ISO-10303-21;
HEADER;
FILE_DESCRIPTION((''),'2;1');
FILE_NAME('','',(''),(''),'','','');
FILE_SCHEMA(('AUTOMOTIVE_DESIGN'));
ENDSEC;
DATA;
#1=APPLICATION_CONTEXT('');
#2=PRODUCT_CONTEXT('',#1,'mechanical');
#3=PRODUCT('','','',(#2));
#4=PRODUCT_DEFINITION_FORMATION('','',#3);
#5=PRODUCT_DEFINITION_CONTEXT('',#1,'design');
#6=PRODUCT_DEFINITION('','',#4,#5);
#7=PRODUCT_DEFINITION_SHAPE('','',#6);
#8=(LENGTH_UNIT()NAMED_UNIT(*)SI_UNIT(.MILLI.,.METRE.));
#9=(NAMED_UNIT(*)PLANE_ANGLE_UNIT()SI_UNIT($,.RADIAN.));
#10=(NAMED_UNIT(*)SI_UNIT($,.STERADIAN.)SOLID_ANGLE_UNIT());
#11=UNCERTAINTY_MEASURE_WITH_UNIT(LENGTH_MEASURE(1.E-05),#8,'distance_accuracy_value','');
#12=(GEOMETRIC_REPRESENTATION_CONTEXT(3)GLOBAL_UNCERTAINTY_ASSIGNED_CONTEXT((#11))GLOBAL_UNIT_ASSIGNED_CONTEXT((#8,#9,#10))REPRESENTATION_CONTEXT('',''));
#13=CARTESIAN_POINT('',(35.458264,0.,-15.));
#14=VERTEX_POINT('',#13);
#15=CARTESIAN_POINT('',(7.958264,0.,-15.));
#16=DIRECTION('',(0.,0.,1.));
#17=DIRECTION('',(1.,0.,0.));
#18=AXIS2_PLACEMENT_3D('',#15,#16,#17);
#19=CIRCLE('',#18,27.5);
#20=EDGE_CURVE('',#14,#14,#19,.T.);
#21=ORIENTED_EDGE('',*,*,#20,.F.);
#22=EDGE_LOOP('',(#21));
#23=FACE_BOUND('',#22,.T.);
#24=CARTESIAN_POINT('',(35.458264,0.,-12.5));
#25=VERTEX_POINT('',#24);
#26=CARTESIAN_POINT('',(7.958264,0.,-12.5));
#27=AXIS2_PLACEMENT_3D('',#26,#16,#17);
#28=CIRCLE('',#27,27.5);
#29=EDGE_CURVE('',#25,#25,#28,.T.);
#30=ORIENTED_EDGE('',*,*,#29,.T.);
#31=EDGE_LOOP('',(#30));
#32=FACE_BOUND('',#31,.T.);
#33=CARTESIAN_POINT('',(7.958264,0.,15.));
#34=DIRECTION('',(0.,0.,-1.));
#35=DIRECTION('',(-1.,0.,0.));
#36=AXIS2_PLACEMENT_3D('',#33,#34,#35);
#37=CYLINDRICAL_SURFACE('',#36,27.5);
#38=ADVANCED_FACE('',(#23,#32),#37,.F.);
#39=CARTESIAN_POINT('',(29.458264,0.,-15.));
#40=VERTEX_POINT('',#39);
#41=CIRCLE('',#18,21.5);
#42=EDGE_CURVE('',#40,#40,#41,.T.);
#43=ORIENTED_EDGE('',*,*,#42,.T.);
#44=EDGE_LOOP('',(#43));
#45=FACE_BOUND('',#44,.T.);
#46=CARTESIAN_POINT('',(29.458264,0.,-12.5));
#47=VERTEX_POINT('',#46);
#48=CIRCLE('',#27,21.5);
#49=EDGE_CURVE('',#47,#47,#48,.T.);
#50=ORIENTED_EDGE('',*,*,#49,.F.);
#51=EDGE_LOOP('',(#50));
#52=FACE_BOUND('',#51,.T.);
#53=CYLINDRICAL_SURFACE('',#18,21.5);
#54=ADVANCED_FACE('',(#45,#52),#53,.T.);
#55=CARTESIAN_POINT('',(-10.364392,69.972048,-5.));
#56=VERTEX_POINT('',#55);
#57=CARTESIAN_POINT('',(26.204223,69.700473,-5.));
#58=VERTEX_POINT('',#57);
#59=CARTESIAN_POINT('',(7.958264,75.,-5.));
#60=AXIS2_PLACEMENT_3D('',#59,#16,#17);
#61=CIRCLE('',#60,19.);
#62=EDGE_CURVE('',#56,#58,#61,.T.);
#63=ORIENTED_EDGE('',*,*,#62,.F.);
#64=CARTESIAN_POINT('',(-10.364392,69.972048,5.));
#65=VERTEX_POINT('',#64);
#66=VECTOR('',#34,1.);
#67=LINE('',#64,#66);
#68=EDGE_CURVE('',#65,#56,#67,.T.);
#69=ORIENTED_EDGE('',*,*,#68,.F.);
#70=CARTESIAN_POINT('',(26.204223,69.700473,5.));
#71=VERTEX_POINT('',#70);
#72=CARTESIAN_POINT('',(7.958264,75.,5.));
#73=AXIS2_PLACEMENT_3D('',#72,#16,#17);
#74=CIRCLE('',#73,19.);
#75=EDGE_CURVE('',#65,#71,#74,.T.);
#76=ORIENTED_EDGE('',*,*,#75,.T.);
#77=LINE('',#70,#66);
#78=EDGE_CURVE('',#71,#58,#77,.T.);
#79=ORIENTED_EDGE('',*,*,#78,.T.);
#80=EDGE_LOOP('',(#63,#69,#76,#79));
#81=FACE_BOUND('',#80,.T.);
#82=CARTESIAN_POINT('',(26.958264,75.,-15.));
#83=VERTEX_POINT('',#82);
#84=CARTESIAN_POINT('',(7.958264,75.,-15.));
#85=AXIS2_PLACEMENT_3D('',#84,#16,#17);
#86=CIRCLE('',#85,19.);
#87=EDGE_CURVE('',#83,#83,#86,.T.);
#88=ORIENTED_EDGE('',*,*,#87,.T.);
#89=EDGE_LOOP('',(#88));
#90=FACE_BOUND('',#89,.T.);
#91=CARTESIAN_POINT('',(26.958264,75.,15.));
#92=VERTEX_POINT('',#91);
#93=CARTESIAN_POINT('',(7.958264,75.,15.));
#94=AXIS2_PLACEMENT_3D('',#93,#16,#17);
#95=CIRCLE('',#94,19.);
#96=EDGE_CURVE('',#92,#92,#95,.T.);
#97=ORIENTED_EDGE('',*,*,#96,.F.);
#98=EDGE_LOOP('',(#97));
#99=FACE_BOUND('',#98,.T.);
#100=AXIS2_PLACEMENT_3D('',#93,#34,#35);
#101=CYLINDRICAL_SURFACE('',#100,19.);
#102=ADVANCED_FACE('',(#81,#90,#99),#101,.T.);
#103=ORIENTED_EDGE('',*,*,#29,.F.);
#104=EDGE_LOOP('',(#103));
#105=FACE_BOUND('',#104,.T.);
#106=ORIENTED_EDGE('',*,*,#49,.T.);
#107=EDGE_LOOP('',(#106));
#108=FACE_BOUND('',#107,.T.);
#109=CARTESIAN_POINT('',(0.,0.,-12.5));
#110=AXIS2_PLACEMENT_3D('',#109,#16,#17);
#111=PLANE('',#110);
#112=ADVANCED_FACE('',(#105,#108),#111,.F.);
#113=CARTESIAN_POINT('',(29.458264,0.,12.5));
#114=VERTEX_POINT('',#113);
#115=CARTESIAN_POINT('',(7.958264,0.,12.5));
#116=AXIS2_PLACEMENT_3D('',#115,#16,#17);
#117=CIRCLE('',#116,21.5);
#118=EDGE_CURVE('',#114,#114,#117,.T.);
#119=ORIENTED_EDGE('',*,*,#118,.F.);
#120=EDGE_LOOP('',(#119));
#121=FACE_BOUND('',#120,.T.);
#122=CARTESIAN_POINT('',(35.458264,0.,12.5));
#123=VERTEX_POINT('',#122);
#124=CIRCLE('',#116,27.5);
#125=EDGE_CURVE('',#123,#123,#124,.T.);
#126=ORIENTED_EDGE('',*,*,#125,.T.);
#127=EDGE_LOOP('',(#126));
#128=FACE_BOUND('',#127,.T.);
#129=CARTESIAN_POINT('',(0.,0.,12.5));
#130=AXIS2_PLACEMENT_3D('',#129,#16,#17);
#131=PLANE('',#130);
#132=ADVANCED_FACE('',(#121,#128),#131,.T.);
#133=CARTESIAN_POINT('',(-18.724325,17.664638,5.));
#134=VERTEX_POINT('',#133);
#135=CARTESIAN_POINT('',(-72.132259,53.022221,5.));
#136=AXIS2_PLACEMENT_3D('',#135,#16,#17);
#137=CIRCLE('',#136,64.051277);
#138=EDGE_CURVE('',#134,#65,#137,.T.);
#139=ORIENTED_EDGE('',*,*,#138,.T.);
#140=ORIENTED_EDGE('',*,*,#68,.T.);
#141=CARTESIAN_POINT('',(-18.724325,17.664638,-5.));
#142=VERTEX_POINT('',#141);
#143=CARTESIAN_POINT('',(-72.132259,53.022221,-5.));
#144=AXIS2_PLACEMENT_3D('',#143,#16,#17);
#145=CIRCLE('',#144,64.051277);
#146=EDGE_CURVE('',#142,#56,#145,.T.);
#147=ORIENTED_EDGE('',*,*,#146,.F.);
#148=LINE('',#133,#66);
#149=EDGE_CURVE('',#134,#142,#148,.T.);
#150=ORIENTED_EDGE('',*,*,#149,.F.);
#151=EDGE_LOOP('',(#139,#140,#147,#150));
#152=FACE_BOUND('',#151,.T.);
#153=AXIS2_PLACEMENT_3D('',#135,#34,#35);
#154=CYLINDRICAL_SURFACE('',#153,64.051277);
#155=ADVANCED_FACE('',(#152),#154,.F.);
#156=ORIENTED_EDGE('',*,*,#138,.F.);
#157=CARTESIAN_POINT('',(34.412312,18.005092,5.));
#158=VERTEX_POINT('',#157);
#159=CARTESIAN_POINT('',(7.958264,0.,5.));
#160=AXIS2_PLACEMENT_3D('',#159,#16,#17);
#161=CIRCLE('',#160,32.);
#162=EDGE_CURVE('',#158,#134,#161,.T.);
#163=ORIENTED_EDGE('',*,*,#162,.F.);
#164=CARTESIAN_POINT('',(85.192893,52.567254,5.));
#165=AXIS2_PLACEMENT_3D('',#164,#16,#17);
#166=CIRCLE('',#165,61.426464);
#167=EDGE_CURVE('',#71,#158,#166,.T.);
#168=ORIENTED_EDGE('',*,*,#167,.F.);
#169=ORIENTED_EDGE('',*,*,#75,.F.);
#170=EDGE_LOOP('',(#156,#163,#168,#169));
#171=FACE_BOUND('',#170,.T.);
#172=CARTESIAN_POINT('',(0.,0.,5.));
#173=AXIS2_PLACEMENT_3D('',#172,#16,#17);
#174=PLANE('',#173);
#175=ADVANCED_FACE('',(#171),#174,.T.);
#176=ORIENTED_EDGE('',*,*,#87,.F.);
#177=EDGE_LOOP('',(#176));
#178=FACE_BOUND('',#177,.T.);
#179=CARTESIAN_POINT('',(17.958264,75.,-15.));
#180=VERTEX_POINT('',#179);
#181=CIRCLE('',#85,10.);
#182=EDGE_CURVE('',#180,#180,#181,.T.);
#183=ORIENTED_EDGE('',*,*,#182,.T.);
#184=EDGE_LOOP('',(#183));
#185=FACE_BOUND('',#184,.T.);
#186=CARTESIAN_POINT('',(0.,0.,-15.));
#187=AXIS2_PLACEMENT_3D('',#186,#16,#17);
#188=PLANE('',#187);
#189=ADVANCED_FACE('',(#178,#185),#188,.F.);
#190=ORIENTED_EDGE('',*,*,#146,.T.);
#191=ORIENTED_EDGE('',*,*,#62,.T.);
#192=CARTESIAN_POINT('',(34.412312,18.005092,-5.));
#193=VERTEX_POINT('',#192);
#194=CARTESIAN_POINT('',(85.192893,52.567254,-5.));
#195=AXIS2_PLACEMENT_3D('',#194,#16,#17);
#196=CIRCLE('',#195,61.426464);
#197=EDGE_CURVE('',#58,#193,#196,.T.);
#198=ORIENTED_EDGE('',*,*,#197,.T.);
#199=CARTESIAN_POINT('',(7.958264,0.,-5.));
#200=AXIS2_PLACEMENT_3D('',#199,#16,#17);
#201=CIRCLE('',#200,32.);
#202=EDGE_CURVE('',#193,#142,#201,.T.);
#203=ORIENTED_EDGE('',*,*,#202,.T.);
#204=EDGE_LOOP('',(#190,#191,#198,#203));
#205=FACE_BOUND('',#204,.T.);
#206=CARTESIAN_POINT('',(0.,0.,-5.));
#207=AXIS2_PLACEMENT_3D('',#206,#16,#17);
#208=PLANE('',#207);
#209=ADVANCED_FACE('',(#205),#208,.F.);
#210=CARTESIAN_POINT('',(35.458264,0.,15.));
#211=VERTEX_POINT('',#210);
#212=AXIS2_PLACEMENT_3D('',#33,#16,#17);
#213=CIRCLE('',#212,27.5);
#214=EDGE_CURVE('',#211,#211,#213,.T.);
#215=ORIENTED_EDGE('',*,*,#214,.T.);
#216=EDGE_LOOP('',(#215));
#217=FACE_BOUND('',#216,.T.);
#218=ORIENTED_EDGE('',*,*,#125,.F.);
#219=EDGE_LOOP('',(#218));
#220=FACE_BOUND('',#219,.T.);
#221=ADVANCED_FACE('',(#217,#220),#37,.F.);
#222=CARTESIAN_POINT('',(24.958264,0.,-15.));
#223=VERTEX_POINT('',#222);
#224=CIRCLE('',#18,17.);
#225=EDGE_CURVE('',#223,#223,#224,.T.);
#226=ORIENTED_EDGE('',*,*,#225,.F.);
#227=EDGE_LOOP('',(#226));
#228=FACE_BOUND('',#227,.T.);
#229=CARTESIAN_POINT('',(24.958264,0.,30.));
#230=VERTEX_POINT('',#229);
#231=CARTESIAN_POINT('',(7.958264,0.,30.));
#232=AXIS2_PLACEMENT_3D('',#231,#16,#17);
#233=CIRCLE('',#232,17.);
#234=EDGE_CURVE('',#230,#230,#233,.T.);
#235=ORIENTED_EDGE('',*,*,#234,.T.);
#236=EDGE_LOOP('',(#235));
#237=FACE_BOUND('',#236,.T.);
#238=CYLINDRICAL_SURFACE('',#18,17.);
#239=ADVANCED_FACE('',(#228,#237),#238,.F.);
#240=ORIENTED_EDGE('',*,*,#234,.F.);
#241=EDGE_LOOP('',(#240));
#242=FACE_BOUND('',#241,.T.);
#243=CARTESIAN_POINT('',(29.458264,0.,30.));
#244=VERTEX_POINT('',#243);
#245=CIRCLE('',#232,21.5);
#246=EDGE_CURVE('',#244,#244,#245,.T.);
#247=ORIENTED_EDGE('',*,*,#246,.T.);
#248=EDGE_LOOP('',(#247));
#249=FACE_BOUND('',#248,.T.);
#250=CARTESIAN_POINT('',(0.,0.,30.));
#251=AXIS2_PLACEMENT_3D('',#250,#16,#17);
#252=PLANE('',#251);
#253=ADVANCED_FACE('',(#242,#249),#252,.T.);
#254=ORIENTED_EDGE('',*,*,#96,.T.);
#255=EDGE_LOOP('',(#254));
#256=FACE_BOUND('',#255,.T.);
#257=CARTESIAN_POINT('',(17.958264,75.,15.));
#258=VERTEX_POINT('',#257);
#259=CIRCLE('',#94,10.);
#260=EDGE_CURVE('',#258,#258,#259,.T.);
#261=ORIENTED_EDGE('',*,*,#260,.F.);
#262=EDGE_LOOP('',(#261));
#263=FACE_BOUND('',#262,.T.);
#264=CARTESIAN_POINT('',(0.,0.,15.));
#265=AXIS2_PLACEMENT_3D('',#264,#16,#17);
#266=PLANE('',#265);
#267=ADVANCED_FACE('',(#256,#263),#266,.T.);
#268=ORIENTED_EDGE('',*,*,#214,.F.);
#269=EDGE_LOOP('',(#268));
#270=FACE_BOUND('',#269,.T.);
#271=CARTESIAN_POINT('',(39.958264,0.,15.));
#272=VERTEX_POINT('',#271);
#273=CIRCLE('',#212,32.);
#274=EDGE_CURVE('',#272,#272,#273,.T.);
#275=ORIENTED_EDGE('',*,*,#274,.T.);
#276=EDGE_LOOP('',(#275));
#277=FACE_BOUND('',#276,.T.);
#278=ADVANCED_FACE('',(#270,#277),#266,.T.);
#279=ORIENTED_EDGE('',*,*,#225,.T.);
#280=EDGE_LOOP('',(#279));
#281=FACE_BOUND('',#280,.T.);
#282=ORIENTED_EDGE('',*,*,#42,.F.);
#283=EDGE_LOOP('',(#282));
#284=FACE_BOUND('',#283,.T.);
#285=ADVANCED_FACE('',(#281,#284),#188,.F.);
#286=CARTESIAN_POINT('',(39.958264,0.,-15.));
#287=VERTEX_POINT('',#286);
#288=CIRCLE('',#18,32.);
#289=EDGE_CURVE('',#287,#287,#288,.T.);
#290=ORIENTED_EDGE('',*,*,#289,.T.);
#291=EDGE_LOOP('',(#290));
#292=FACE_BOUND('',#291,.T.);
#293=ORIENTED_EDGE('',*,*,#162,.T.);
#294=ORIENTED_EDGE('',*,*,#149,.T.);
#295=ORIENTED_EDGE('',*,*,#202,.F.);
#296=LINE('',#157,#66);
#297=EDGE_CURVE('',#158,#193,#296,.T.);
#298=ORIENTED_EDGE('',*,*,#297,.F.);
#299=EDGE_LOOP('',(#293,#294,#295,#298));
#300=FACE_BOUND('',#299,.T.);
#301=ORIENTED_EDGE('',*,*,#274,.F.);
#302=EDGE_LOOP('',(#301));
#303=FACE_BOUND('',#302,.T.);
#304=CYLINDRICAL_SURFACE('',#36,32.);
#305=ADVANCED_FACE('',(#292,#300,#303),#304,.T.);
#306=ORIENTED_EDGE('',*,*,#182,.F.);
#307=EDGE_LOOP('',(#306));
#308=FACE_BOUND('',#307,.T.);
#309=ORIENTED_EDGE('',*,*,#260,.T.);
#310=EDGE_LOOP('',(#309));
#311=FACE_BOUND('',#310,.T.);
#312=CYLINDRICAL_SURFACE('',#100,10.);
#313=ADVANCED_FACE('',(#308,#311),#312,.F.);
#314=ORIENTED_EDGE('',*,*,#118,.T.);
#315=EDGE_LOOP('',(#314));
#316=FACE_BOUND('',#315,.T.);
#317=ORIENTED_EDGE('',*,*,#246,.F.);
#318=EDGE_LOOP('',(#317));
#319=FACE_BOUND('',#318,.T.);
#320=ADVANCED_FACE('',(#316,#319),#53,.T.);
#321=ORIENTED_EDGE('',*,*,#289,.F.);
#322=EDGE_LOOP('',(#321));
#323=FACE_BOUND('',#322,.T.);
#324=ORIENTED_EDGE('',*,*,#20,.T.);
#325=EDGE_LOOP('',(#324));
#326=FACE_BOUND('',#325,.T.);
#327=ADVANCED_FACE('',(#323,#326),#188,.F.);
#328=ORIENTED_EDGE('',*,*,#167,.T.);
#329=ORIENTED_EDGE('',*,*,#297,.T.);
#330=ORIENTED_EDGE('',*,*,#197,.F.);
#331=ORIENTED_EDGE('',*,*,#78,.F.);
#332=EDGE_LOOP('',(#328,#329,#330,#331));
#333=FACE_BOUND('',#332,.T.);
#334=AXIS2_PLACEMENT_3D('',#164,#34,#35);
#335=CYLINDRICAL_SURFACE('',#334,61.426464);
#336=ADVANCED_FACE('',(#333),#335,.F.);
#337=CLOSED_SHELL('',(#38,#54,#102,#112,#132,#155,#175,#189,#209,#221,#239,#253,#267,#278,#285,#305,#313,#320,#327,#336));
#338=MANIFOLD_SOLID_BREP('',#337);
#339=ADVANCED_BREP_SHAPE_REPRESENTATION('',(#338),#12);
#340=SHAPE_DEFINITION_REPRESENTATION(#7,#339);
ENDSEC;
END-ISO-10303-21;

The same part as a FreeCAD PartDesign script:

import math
import FreeCAD as App
import Part
import Sketcher

V = App.Vector
Q = App.Units.Quantity

doc = App.newDocument("Part")
body = doc.addObject("PartDesign::Body", "Body")

sketch1 = body.newObject("Sketcher::SketchObject", "Sketch")
sketch1.AttachmentSupport = (doc.getObject("XY_Plane"), [""])
sketch1.MapMode = "FlatFace"
sketch1.addGeometry([
    Part.ArcOfCircle(Part.Circle(V(8, 0, 0), V(0, 0, 1), 32), math.radians(34), math.radians(146)),
    Part.ArcOfCircle(Part.Circle(V(85, 53, 0), V(0, 0, 1), 61), math.radians(164), math.radians(214)),
    Part.ArcOfCircle(Part.Circle(V(8, 75, 0), V(0, 0, 1), 19), math.radians(-165), math.radians(-16)),
    Part.ArcOfCircle(Part.Circle(V(-72, 53, 0), V(0, 0, 1), 64), math.radians(-34), math.radians(15)),
], False)
sketch1.addConstraint([
    Sketcher.Constraint("Tangent", 0, 1, 1, 2),
    Sketcher.Constraint("Tangent", 1, 1, 2, 2),
    Sketcher.Constraint("Tangent", 2, 1, 3, 2),
    Sketcher.Constraint("Tangent", 3, 1, 0, 2),
    Sketcher.Constraint("PointOnObject", 0, 3, -1),
    Sketcher.Constraint("Vertical", 0, 3, 2, 3),
    Sketcher.Constraint("Radius", 0, Q("32 mm")),
    Sketcher.Constraint("Radius", 2, Q("19 mm")),
    Sketcher.Constraint("DistanceY", -1, 1, 2, 3, Q("75 mm")),
    Sketcher.Constraint("Radius", 1, Q("61.426464 mm")),
    Sketcher.Constraint("Radius", 3, Q("64.051277 mm")),
    Sketcher.Constraint("DistanceX", 3, 3, -1, 1, Q("72.132259 mm")),
])
pad1 = body.newObject("PartDesign::Pad", "Pad")
pad1.Profile = sketch1
pad1.Length = 10
pad1.Midplane = True

sketch2 = body.newObject("Sketcher::SketchObject", "Sketch001")
sketch2.AttachmentSupport = (doc.getObject("XY_Plane"), [""])
sketch2.MapMode = "FlatFace"
sketch2.addGeometry([
    Part.Circle(V(8, 75, 0), V(0, 0, 1), 19),
    Part.Circle(V(8, 75, 0), V(0, 0, 1), 10),
], False)
sketch2.addConstraint([
    Sketcher.Constraint("Coincident", 1, 3, 0, 3),
    Sketcher.Constraint("Diameter", 0, Q("38 mm")),
    Sketcher.Constraint("Diameter", 1, Q("20 mm")),
    Sketcher.Constraint("DistanceY", -1, 1, 0, 3, Q("75 mm")),
    Sketcher.Constraint("DistanceX", -1, 1, 0, 3, Q("7.958264 mm")),
])
pad2 = body.newObject("PartDesign::Pad", "Pad001")
pad2.Profile = sketch2
pad2.Length = 30
pad2.Midplane = True

sketch3 = body.newObject("Sketcher::SketchObject", "Sketch002")
sketch3.AttachmentSupport = (doc.getObject("XY_Plane"), [""])
sketch3.MapMode = "FlatFace"
sketch3.addGeometry([
    Part.Circle(V(8, 0, 0), V(0, 0, 1), 32),
    Part.Circle(V(8, 0, 0), V(0, 0, 1), 28),
], False)
sketch3.addConstraint([
    Sketcher.Constraint("Coincident", 1, 3, 0, 3),
    Sketcher.Constraint("PointOnObject", 0, 3, -1),
    Sketcher.Constraint("Diameter", 0, Q("64 mm")),
    Sketcher.Constraint("Diameter", 1, Q("55 mm")),
    Sketcher.Constraint("DistanceX", -1, 1, 0, 3, Q("7.958264 mm")),
])
pad3 = body.newObject("PartDesign::Pad", "Pad002")
pad3.Profile = sketch3
pad3.Length = 30
pad3.Midplane = True
body2 = doc.addObject("PartDesign::Body", "Body001")

sketch4 = body2.newObject("Sketcher::SketchObject", "Sketch003")
sketch4.AttachmentSupport = (doc.getObject("XY_Plane001"), [""])
sketch4.MapMode = "FlatFace"
sketch4.addGeometry([
    Part.Circle(V(8, 0, 0), V(0, 0, 1), 22),
    Part.Circle(V(8, 0, 0), V(0, 0, 1), 17),
], False)
sketch4.addConstraint([
    Sketcher.Constraint("Coincident", 1, 3, 0, 3),
    Sketcher.Constraint("PointOnObject", 0, 3, -1),
    Sketcher.Constraint("Diameter", 0, Q("43 mm")),
    Sketcher.Constraint("Diameter", 1, Q("34 mm")),
    Sketcher.Constraint("DistanceX", -1, 1, 0, 3, Q("7.958264 mm")),
])
pad4 = body2.newObject("PartDesign::Pad", "Pad003")
pad4.Profile = sketch4
pad4.Type = "TwoLengths"
pad4.Length = 30
pad4.Length2 = 15
body.AllowCompound = True
doc.recompute()

boolean = body.newObject("PartDesign::Boolean", "Boolean")
boolean.Type = "Fuse"
boolean.addObjects([body2])

sketch5 = body.newObject("Sketcher::SketchObject", "Sketch004")
sketch5.AttachmentSupport = (doc.getObject("XY_Plane"), [""])
sketch5.MapMode = "FlatFace"
sketch5.addGeometry([
    Part.Circle(V(8, 0, 0), V(0, 0, 1), 28),
    Part.Circle(V(8, 0, 0), V(0, 0, 1), 22),
], False)
sketch5.addConstraint([
    Sketcher.Constraint("Coincident", 1, 3, 0, 3),
    Sketcher.Constraint("PointOnObject", 0, 3, -1),
    Sketcher.Constraint("Diameter", 0, Q("55 mm")),
    Sketcher.Constraint("Diameter", 1, Q("43 mm")),
    Sketcher.Constraint("DistanceX", -1, 1, 0, 3, Q("7.958264 mm")),
])
pad5 = body.newObject("PartDesign::Pad", "Pad004")
pad5.Profile = sketch5
pad5.Length = 25
pad5.Midplane = True

doc.recompute()
